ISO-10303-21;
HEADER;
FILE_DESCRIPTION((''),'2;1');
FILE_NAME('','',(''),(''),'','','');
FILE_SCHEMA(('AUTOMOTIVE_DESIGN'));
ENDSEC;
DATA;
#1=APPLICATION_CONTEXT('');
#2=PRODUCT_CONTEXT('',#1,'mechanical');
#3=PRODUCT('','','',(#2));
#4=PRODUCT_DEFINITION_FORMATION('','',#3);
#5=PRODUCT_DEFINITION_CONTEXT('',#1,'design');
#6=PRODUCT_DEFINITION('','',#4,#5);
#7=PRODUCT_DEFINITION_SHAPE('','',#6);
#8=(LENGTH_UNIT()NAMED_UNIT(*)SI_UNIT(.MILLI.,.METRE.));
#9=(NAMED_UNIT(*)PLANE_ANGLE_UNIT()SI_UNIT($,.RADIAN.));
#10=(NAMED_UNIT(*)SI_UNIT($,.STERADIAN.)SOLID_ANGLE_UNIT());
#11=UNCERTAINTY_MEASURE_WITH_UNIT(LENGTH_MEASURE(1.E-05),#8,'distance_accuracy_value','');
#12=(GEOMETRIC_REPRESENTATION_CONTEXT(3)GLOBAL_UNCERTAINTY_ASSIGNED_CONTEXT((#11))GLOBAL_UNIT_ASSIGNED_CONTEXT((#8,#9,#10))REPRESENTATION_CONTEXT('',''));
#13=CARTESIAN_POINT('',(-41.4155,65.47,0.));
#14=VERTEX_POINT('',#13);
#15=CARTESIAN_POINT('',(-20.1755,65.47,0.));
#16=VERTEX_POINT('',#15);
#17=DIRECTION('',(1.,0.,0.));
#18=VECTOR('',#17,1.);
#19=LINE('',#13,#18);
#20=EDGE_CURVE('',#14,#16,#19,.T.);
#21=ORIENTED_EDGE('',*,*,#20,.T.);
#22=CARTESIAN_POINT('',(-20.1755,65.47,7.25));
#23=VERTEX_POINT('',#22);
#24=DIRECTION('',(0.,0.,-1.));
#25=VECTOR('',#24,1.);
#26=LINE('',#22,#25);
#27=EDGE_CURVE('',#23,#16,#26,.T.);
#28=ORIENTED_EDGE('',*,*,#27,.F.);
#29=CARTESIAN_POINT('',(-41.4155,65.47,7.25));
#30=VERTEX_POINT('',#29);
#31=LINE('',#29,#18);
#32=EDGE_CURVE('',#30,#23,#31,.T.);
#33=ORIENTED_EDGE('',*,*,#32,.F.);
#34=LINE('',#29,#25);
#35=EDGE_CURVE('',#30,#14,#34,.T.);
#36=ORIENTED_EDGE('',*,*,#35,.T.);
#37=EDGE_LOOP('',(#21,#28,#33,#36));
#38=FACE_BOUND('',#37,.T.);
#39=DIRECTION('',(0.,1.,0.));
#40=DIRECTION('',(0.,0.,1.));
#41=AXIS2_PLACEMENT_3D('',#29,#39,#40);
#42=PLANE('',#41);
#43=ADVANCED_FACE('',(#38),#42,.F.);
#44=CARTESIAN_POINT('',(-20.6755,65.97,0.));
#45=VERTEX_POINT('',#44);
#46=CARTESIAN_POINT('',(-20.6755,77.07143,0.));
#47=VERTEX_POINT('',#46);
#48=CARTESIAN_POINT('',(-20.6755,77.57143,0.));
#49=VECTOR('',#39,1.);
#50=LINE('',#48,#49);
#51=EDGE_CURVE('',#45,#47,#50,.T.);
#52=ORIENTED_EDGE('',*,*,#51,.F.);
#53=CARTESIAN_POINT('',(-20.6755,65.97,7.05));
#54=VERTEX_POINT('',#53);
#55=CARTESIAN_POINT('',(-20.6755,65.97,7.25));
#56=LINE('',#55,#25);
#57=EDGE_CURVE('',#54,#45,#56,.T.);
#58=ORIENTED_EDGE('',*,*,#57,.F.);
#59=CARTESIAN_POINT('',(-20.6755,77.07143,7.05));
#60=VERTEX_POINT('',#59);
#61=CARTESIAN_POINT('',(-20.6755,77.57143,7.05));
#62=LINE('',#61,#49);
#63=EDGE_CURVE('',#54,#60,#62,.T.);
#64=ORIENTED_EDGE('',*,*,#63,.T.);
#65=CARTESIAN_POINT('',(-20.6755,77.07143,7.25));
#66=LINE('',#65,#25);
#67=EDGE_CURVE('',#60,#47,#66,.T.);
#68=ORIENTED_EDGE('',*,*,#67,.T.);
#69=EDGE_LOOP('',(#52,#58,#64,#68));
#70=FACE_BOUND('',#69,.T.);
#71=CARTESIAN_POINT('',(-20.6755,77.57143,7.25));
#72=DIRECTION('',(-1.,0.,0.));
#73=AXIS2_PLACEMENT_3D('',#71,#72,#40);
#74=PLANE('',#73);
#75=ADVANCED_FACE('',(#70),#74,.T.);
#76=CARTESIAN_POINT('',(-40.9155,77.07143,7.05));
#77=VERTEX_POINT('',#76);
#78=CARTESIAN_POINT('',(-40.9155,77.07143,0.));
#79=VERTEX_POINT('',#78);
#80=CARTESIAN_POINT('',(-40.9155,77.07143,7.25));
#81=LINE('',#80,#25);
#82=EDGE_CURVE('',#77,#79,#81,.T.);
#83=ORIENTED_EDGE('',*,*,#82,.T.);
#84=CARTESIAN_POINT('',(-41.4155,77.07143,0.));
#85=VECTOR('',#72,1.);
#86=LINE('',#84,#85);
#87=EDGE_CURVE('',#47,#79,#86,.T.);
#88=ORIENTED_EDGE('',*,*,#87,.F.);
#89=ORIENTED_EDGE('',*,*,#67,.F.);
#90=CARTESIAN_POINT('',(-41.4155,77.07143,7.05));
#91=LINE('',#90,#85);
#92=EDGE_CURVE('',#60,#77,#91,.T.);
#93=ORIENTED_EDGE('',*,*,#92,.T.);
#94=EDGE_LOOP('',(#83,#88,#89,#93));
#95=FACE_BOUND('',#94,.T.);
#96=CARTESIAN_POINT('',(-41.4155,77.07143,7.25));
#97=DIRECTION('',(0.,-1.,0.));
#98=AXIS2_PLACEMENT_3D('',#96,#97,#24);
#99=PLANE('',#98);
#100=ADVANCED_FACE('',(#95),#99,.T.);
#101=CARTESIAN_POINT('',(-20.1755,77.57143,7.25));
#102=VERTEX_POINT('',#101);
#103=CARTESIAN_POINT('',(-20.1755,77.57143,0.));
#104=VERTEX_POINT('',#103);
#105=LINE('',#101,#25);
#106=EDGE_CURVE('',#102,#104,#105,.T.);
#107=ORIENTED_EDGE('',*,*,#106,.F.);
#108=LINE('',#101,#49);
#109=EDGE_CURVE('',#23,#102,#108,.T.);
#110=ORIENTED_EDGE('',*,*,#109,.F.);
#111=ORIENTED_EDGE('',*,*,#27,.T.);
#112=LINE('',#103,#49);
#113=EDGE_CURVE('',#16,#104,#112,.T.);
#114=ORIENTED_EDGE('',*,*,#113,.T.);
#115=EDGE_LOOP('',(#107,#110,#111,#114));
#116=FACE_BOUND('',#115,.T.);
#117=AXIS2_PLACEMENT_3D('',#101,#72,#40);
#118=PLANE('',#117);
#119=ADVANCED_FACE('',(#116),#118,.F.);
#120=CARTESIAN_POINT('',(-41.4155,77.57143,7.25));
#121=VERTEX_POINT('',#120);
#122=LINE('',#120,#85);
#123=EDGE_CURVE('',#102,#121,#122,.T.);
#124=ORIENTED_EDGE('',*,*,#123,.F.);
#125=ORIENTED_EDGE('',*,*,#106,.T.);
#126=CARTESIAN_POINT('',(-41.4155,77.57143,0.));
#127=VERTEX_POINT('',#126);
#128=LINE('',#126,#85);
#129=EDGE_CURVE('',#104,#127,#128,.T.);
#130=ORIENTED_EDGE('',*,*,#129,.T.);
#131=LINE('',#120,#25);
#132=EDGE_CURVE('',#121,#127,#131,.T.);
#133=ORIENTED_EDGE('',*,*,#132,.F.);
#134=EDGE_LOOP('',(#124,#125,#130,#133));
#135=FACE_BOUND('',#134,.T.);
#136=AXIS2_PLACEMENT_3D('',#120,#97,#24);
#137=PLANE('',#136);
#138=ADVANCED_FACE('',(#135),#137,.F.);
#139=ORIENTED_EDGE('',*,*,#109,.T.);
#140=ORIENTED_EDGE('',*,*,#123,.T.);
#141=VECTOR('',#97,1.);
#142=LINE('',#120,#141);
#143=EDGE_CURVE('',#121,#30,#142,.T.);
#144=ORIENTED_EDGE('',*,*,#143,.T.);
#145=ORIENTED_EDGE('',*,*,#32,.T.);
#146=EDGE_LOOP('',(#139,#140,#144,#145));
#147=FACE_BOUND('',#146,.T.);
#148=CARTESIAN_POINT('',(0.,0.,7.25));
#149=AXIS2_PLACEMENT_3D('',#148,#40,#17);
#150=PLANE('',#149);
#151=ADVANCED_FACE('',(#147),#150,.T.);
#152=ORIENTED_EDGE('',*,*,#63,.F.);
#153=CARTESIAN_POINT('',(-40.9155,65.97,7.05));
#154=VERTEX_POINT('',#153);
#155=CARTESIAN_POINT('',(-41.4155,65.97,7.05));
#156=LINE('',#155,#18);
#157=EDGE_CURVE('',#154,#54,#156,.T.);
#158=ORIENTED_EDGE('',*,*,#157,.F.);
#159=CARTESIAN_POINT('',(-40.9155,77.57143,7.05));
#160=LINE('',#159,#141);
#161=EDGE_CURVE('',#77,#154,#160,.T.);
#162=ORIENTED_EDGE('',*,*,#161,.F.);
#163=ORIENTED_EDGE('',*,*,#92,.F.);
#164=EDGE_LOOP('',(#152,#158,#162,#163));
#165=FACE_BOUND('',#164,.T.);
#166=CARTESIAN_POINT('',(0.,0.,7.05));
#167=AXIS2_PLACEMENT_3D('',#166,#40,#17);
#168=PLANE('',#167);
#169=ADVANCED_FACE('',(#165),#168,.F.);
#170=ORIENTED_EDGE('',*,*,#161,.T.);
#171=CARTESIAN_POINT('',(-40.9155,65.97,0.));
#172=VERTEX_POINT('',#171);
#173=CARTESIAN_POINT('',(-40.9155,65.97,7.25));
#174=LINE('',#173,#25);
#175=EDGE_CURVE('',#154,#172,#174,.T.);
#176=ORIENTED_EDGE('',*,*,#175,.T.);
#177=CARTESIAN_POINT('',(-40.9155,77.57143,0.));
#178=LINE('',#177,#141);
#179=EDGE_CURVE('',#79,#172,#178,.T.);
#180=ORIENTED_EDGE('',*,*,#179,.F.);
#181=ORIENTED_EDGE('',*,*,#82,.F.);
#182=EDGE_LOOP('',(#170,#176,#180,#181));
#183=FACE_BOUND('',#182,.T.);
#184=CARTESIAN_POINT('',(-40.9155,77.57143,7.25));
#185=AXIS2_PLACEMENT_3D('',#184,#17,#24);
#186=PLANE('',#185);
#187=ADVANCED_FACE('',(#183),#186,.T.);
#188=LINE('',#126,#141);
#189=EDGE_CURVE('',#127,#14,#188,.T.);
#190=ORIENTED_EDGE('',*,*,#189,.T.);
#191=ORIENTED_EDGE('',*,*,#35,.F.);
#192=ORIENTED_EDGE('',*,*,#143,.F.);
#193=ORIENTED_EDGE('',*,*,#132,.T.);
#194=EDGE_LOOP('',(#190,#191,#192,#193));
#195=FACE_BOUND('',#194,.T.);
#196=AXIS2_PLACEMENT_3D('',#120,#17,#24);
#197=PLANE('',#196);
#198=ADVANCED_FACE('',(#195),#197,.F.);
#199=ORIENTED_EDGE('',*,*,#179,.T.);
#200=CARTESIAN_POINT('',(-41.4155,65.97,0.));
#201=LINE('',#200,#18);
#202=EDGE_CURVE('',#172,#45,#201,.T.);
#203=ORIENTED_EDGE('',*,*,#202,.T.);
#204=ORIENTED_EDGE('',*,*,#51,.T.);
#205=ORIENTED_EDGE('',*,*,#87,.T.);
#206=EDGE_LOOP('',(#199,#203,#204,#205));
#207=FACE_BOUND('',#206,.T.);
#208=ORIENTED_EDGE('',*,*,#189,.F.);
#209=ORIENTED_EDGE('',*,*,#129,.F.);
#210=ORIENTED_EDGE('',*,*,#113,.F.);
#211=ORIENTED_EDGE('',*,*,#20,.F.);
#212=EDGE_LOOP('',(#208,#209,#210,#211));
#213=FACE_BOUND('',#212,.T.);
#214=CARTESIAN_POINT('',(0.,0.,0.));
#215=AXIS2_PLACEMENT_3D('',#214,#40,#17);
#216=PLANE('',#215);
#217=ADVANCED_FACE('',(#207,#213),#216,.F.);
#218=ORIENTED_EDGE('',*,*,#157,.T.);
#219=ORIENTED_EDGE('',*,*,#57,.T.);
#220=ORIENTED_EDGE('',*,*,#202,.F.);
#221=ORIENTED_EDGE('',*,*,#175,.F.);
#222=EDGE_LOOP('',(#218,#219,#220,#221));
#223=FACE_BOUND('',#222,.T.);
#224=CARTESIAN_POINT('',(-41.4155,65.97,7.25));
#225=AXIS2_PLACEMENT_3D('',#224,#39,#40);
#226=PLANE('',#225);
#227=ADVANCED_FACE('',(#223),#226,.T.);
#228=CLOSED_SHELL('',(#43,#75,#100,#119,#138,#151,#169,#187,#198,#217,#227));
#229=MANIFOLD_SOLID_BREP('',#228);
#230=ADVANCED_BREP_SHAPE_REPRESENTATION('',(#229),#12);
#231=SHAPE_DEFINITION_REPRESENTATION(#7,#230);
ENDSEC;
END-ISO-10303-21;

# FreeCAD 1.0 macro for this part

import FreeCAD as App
import Part
import Sketcher
from FreeCAD import Vector


def faces_at(feature, points):
    """Names of the faces that lie closest to the given points."""
    faces = feature.Shape.Faces
    near = lambda p: min(range(len(faces)), key=lambda i: faces[i].distToShape(Part.Vertex(*p))[0])
    return sorted({f"Face{near(p) + 1}" for p in points})

doc = App.newDocument("Part")
body = doc.addObject("PartDesign::Body", "Body")

# Sketch on XY plane
sketch1 = doc.addObject("Sketcher::SketchObject", "Sketch")
body.addObject(sketch1)
sketch1.AttachmentSupport = (doc.XY_Plane, [""])
sketch1.MapMode = "FlatFace"
sketch1.addGeometry([
    Part.LineSegment(Vector(-41, 78, 0), Vector(-41, 65, 0)),
    Part.LineSegment(Vector(-41, 65, 0), Vector(-20, 65, 0)),
    Part.LineSegment(Vector(-20, 65, 0), Vector(-20, 78, 0)),
    Part.LineSegment(Vector(-20, 78, 0), Vector(-41, 78, 0)),
], False)
sketch1.addConstraint([
    Sketcher.Constraint("Coincident", 0, 2, 1, 1),
    Sketcher.Constraint("Coincident", 1, 2, 2, 1),
    Sketcher.Constraint("Coincident", 2, 2, 3, 1),
    Sketcher.Constraint("Coincident", 3, 2, 0, 1),
    Sketcher.Constraint("Vertical", 0),
    Sketcher.Constraint("Horizontal", 1),
    Sketcher.Constraint("Vertical", 2),
    Sketcher.Constraint("Horizontal", 3),
    Sketcher.Constraint("DistanceX", 1, 1, 1, 2, 21.24),
    Sketcher.Constraint("DistanceY", -1, 1, 0, 2, 65.47),
    Sketcher.Constraint("DistanceY", 0, 2, 0, 1, 12.10143),
    Sketcher.Constraint("DistanceX", 0, 2, -1, 1, 41.4155),
])
pad1 = doc.addObject("PartDesign::Pad", "Pad")
body.addObject(pad1)
pad1.Profile = sketch1
pad1.Length = 7.25
doc.recompute()

thickness = doc.addObject("PartDesign::Thickness", "Thickness")
body.addObject(thickness)
thickness.Base = (pad1, faces_at(pad1, [(-30.796, 71.521, 0)]))
thickness.Value = 0.5
thickness.Reversed = True
thickness.Join = "Intersection"

# Sketch on XY plane
sketch2 = doc.addObject("Sketcher::SketchObject", "Sketch001")
body.addObject(sketch2)
sketch2.AttachmentSupport = (doc.XY_Plane, [""])
sketch2.MapMode = "FlatFace"
sketch2.AttachmentOffset = App.Placement(Vector(0, 0, 6.75), App.Rotation())
sketch2.addGeometry([
    Part.LineSegment(Vector(-41, 77, 0), Vector(-41, 66, 0)),
    Part.LineSegment(Vector(-41, 66, 0), Vector(-21, 66, 0)),
    Part.LineSegment(Vector(-21, 66, 0), Vector(-21, 77, 0)),
    Part.LineSegment(Vector(-21, 77, 0), Vector(-41, 77, 0)),
], False)
sketch2.addConstraint([
    Sketcher.Constraint("Coincident", 0, 2, 1, 1),
    Sketcher.Constraint("Coincident", 1, 2, 2, 1),
    Sketcher.Constraint("Coincident", 2, 2, 3, 1),
    Sketcher.Constraint("Coincident", 3, 2, 0, 1),
    Sketcher.Constraint("Vertical", 0),
    Sketcher.Constraint("Horizontal", 1),
    Sketcher.Constraint("Vertical", 2),
    Sketcher.Constraint("Horizontal", 3),
    Sketcher.Constraint("DistanceX", 1, 1, 1, 2, 20.24),
    Sketcher.Constraint("DistanceY", -1, 1, 0, 2, 65.97),
    Sketcher.Constraint("DistanceY", 0, 2, 0, 1, 11.10143),
    Sketcher.Constraint("DistanceX", 0, 2, -1, 1, 40.9155),
])
pocket1 = doc.addObject("PartDesign::Pocket", "Pocket")
body.addObject(pocket1)
pocket1.Profile = sketch2
pocket1.Length = 0.3
pocket1.Reversed = True

doc.recompute()
